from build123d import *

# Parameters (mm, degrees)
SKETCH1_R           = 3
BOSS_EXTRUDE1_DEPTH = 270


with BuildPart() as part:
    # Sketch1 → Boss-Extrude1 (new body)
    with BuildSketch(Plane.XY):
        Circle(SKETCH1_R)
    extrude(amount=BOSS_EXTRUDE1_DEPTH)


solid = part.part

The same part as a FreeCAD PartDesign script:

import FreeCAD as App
import Part
import Sketcher
from FreeCAD import Vector
Q = App.Units.Quantity

doc = App.newDocument("Part")
body = doc.addObject("PartDesign::Body", "Body")

# Sketch on XY plane
sketch1 = body.newObject("Sketcher::SketchObject", "Sketch")
sketch1.AttachmentSupport = (doc.getObject("XY_Plane"), [""])
sketch1.MapMode = "FlatFace"
sketch1.addGeometry(Part.Circle(Vector(0, 0, 0), Vector(0, 0, 1), 3), False)
sketch1.addConstraint([
    Sketcher.Constraint("Coincident", 0, 3, -1, 1),
    Sketcher.Constraint("Diameter", 0, Q("6 mm")),
])
pad1 = body.newObject("PartDesign::Pad", "Pad")
pad1.Profile = sketch1
pad1.Length = 270

doc.recompute()
